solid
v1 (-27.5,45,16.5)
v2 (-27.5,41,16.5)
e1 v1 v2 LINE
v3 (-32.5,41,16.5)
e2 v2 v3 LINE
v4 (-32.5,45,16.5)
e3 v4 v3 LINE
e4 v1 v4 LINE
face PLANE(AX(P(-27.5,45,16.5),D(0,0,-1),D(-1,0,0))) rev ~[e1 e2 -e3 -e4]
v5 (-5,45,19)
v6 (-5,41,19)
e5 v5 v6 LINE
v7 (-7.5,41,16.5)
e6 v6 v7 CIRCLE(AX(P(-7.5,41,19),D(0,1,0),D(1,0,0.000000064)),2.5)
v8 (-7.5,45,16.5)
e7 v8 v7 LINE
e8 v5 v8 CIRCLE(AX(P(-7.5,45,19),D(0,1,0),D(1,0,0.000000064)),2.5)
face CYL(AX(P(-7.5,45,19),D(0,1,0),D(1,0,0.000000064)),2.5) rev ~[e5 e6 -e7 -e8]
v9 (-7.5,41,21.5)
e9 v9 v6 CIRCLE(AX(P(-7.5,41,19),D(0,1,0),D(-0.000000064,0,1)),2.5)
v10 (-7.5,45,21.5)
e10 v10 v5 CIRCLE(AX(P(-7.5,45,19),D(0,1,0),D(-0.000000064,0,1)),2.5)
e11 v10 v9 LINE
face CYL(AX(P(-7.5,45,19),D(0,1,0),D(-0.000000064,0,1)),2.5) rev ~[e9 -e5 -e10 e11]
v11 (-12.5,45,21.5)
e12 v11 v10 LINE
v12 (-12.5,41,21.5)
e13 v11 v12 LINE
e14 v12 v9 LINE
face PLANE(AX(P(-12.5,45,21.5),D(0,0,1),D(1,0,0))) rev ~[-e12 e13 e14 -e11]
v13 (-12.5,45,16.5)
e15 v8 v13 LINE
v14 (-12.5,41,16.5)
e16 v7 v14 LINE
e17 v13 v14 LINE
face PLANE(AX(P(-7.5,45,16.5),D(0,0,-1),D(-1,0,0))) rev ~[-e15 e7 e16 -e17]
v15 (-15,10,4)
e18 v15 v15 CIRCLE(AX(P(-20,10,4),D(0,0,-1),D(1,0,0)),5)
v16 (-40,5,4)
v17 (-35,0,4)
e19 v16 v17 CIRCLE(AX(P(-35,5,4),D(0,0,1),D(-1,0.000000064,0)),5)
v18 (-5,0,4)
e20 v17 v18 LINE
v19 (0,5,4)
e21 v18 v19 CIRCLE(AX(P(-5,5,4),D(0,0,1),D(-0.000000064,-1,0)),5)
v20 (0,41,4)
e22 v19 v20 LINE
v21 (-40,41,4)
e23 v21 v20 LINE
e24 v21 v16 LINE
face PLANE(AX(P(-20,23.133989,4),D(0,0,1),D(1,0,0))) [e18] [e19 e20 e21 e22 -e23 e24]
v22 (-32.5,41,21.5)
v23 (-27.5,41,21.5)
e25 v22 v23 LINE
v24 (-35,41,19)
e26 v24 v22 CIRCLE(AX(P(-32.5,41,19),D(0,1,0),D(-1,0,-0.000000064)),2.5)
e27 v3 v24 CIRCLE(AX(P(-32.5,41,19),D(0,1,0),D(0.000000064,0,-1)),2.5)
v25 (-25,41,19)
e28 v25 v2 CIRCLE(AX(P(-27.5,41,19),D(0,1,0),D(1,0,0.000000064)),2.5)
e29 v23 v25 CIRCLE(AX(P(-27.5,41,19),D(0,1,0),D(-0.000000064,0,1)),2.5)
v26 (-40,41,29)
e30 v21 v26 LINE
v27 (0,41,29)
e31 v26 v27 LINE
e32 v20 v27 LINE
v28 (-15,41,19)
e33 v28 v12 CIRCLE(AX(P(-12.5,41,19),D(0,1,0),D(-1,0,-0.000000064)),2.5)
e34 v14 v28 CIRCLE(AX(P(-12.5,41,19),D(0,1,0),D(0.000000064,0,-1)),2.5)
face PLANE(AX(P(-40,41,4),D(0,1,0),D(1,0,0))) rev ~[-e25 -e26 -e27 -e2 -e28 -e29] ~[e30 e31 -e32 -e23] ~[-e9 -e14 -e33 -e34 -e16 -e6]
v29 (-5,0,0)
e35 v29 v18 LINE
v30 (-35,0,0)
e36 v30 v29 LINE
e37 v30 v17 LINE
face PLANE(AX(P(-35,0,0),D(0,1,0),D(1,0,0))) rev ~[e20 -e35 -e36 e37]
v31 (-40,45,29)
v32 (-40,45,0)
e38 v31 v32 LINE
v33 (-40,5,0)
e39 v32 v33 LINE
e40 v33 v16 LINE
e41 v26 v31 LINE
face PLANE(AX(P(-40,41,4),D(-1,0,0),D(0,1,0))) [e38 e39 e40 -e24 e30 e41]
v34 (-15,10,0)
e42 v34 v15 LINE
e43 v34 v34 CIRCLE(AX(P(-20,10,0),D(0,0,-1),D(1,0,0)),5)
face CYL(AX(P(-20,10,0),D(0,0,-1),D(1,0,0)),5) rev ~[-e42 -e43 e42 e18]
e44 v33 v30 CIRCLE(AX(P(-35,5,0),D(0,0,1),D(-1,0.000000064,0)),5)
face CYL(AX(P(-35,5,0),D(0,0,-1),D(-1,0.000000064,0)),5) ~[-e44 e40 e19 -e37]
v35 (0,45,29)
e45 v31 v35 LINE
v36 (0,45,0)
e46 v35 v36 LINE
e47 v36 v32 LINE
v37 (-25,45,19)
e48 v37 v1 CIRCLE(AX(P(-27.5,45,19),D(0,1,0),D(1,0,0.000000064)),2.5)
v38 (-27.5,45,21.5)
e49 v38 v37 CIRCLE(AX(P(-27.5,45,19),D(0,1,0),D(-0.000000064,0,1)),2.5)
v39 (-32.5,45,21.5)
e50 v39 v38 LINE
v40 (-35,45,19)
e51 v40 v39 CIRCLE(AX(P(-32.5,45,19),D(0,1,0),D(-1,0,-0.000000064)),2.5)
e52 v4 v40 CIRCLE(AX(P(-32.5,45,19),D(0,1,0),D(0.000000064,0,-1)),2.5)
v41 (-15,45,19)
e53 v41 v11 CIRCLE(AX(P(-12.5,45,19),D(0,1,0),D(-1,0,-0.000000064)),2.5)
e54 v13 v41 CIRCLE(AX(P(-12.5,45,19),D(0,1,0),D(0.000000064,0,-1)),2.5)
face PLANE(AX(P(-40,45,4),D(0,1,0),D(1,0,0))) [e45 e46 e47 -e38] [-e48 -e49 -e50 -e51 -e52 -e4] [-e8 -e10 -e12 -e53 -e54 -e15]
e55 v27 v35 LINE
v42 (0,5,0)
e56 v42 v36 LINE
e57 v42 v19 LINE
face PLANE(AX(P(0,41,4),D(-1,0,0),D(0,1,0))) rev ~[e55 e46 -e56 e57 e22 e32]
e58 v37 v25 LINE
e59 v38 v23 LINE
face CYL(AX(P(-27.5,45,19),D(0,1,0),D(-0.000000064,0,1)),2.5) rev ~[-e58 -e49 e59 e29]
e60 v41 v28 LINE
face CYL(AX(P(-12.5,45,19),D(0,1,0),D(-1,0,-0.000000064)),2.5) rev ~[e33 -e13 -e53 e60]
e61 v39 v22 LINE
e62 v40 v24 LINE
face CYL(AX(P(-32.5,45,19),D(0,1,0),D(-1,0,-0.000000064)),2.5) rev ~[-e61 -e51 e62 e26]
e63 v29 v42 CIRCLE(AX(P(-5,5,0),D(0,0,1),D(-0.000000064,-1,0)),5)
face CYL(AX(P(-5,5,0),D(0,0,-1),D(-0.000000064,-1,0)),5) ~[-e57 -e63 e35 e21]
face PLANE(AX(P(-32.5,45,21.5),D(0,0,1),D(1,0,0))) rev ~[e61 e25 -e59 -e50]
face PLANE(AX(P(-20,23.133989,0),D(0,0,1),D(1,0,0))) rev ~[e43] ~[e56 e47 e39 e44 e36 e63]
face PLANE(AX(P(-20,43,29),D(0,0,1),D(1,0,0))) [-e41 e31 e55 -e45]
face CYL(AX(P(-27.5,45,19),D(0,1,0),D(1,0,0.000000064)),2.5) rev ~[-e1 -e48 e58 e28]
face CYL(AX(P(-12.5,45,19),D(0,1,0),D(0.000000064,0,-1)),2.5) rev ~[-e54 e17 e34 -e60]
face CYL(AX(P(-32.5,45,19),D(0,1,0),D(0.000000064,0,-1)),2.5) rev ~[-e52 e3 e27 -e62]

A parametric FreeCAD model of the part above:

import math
import FreeCAD as App
import Part
import Sketcher
from FreeCAD import Vector

doc = App.newDocument("Part")
params = doc.addObject("Spreadsheet::Sheet", "Params")
for row, (alias, value) in enumerate([
    ("sketch1_radius", "5 mm"),
    ("sketch1_width", "30 mm"),
    ("pad1_length", "4 mm"),
    ("sketch2_width", "40 mm"),
    ("sketch2_height", "4 mm"),
    ("pad2_length", "25 mm"),
    ("sketch3_radius", "2.5 mm"),
    ("sketch3_width", "5 mm"),
    ("pocket1_length", "25 mm"),
    ("sketch4_diameter", "10 mm"),
    ("pocket2_length", "25 mm"),
], start=1):
    params.set(f"A{row}", alias)
    params.set(f"B{row}", "=" + value)
    params.setAlias(f"B{row}", alias)

body = doc.addObject("PartDesign::Body", "Body")

# Sketch on XY plane
sketch1 = body.newObject("Sketcher::SketchObject", "Sketch")
sketch1.AttachmentSupport = (doc.getObject("XY_Plane"), [""])
sketch1.MapMode = "FlatFace"
sketch1.addGeometry([
    Part.LineSegment(Vector(-35, 0, 0), Vector(-5, 0, 0)),  # 0
    Part.ArcOfCircle(Part.Circle(Vector(-5, 5, 0), Vector(0, 0, 1), 5), math.radians(-90), math.radians(0)),  # 1
    Part.LineSegment(Vector(0, 5, 0), Vector(0, 45, 0)),  # 2
    Part.LineSegment(Vector(0, 45, 0), Vector(-40, 45, 0)),  # 3
    Part.LineSegment(Vector(-40, 45, 0), Vector(-40, 5, 0)),  # 4
    Part.ArcOfCircle(Part.Circle(Vector(-35, 5, 0), Vector(0, 0, 1), 5), math.radians(180), math.radians(270)),  # 5
], False)
sketch1.addConstraint([
    Sketcher.Constraint("Tangent", 0, 2, 1, 1),
    Sketcher.Constraint("Tangent", 1, 2, 2, 1),
    Sketcher.Constraint("Coincident", 2, 2, 3, 1),
    Sketcher.Constraint("Coincident", 3, 2, 4, 1),
    Sketcher.Constraint("Tangent", 4, 2, 5, 1),
    Sketcher.Constraint("Tangent", 5, 2, 0, 1),
    Sketcher.Constraint("Horizontal", 0),
    Sketcher.Constraint("Vertical", 2),
    Sketcher.Constraint("Horizontal", 3),
    Sketcher.Constraint("Vertical", 4),
    Sketcher.Constraint("Equal", 1, 5),
    Sketcher.Constraint("PointOnObject", 0, 2, -1),
    Sketcher.Constraint("PointOnObject", 1, 2, -2),
    Sketcher.Constraint("Equal", 3, 2),
    Sketcher.Constraint("Radius", 1, 5.0),
    Sketcher.Constraint("DistanceX", 0, 1, 0, 2, 30.0),
])
sketch1.setExpression("Constraints[14]", "Params.sketch1_radius")
sketch1.setExpression("Constraints[15]", "Params.sketch1_width")
pad1 = body.newObject("PartDesign::Pad", "Pad")
pad1.Profile = sketch1
pad1.setExpression("Length", "Params.pad1_length")

# Sketch on XY plane
sketch2 = body.newObject("Sketcher::SketchObject", "Sketch001")
sketch2.AttachmentSupport = (doc.getObject("XY_Plane"), [""])
sketch2.MapMode = "FlatFace"
sketch2.AttachmentOffset = App.Placement(Vector(0, 0, 4), App.Rotation())
sketch2.addGeometry([
    Part.LineSegment(Vector(-40, 45, 0), Vector(-40, 41, 0)),
    Part.LineSegment(Vector(-40, 41, 0), Vector(0, 41, 0)),
    Part.LineSegment(Vector(0, 41, 0), Vector(0, 45, 0)),
    Part.LineSegment(Vector(0, 45, 0), Vector(-40, 45, 0)),
], False)
sketch2.addConstraint([
    Sketcher.Constraint("Coincident", 0, 2, 1, 1),
    Sketcher.Constraint("Coincident", 1, 2, 2, 1),
    Sketcher.Constraint("Coincident", 2, 2, 3, 1),
    Sketcher.Constraint("Coincident", 3, 2, 0, 1),
    Sketcher.Constraint("Vertical", 0),
    Sketcher.Constraint("Horizontal", 1),
    Sketcher.Constraint("Vertical", 2),
    Sketcher.Constraint("Horizontal", 3),
    Sketcher.Constraint("PointOnObject", 1, 2, -2),
    Sketcher.Constraint("DistanceX", 1, 1, 1, 2, 40.0),
    Sketcher.Constraint("DistanceY", 0, 2, 0, 1, 4.0),
    Sketcher.Constraint("DistanceY", -1, 1, 0, 2, 41.0),
])
sketch2.setExpression("Constraints[9]", "Params.sketch2_width")
sketch2.setExpression("Constraints[10]", "Params.sketch2_height")
pad2 = body.newObject("PartDesign::Pad", "Pad001")
pad2.Profile = sketch2
pad2.setExpression("Length", "Params.pad2_length")

# Sketch on XZ plane
sketch3 = body.newObject("Sketcher::SketchObject", "Sketch002")
sketch3.AttachmentSupport = (doc.getObject("XZ_Plane"), [""])
sketch3.MapMode = "FlatFace"
sketch3.AttachmentOffset = App.Placement(Vector(0, 0, -45), App.Rotation())
sketch3.addGeometry([
    Part.ArcOfCircle(Part.Circle(Vector(-27.5, 19, 0), Vector(0, 0, 1), 2.5), math.radians(-90), math.radians(0)),  # 0
    Part.LineSegment(Vector(-27.5, 16.5, 0), Vector(-32.5, 16.5, 0)),  # 1
    Part.ArcOfCircle(Part.Circle(Vector(-32.5, 19, 0), Vector(0, 0, 1), 2.5), math.radians(180), math.radians(270)),  # 2
    Part.ArcOfCircle(Part.Circle(Vector(-32.5, 19, 0), Vector(0, 0, 1), 2.5), math.radians(90), math.radians(180)),  # 3
    Part.LineSegment(Vector(-32.5, 21.5, 0), Vector(-27.5, 21.5, 0)),  # 4
    Part.ArcOfCircle(Part.Circle(Vector(-27.5, 19, 0), Vector(0, 0, 1), 2.5), math.radians(0), math.radians(90)),  # 5
    Part.ArcOfCircle(Part.Circle(Vector(-7.5, 19, 0), Vector(0, 0, 1), 2.5), math.radians(-90), math.radians(0)),  # 6
    Part.LineSegment(Vector(-7.5, 16.5, 0), Vector(-12.5, 16.5, 0)),  # 7
    Part.ArcOfCircle(Part.Circle(Vector(-12.5, 19, 0), Vector(0, 0, 1), 2.5), math.radians(180), math.radians(270)),  # 8
    Part.ArcOfCircle(Part.Circle(Vector(-12.5, 19, 0), Vector(0, 0, 1), 2.5), math.radians(90), math.radians(180)),  # 9
    Part.LineSegment(Vector(-12.5, 21.5, 0), Vector(-7.5, 21.5, 0)),  # 10
    Part.ArcOfCircle(Part.Circle(Vector(-7.5, 19, 0), Vector(0, 0, 1), 2.5), math.radians(0), math.radians(90)),  # 11
], False)
sketch3.addConstraint([
    Sketcher.Constraint("Tangent", 0, 1, 1, 1),
    Sketcher.Constraint("Tangent", 1, 2, 2, 2),
    Sketcher.Constraint("Tangent", 2, 1, 3, 2),
    Sketcher.Constraint("Tangent", 3, 1, 4, 1),
    Sketcher.Constraint("Tangent", 4, 2, 5, 2),
    Sketcher.Constraint("Tangent", 5, 1, 0, 2),
    Sketcher.Constraint("Tangent", 6, 1, 7, 1),
    Sketcher.Constraint("Tangent", 7, 2, 8, 2),
    Sketcher.Constraint("Tangent", 8, 1, 9, 2),
    Sketcher.Constraint("Tangent", 9, 1, 10, 1),
    Sketcher.Constraint("Tangent", 10, 2, 11, 2),
    Sketcher.Constraint("Tangent", 11, 1, 6, 2),
    Sketcher.Constraint("Horizontal", 1),
    Sketcher.Constraint("Horizontal", 4),
    Sketcher.Constraint("Horizontal", 7),
    Sketcher.Constraint("Horizontal", 10),
    Sketcher.Constraint("Equal", 0, 2),
    Sketcher.Constraint("Equal", 2, 3),
    Sketcher.Constraint("Equal", 5, 6),
    Sketcher.Constraint("Equal", 6, 8),
    Sketcher.Constraint("Equal", 8, 9),
    Sketcher.Constraint("Horizontal", 5, 3, 6, 3),
    Sketcher.Constraint("Horizontal", 11, 3, 2, 1),
    Sketcher.Constraint("Horizontal", 2, 1, 5, 1),
    Sketcher.Constraint("Horizontal", 5, 1, 8, 1),
    Sketcher.Constraint("Horizontal", 8, 1, 11, 1),
    Sketcher.Constraint("Equal", 4, 7),
    Sketcher.Constraint("Radius", 0, 2.5),
    Sketcher.Constraint("DistanceX", 1, 2, 1, 1, 5.0),
    Sketcher.Constraint("DistanceY", -1, 1, 0, 3, 19.0),
    Sketcher.Constraint("DistanceX", 2, 1, -1, 1, 35.0),
    Sketcher.Constraint("DistanceX", 8, 1, -1, 1, 15.0),
])
sketch3.setExpression("Constraints[27]", "Params.sketch3_radius")
sketch3.setExpression("Constraints[28]", "Params.sketch3_width")
pocket1 = body.newObject("PartDesign::Pocket", "Pocket")
pocket1.Profile = sketch3
pocket1.setExpression("Length", "Params.pocket1_length")
pocket1.Reversed = True

# Sketch on XY plane
sketch4 = body.newObject("Sketcher::SketchObject", "Sketch003")
sketch4.AttachmentSupport = (doc.getObject("XY_Plane"), [""])
sketch4.MapMode = "FlatFace"
sketch4.addGeometry(Part.Circle(Vector(-20, 10, 0), Vector(0, 0, 1), 5), False)
sketch4.addConstraint([
    Sketcher.Constraint("Diameter", 0, 10.0),
    Sketcher.Constraint("DistanceX", 0, 3, -1, 1, 20.0),
    Sketcher.Constraint("DistanceY", -1, 1, 0, 3, 10.0),
])
sketch4.setExpression("Constraints[0]", "Params.sketch4_diameter")
pocket2 = body.newObject("PartDesign::Pocket", "Pocket001")
pocket2.Profile = sketch4
pocket2.setExpression("Length", "Params.pocket2_length")
pocket2.Reversed = True

doc.recompute()
